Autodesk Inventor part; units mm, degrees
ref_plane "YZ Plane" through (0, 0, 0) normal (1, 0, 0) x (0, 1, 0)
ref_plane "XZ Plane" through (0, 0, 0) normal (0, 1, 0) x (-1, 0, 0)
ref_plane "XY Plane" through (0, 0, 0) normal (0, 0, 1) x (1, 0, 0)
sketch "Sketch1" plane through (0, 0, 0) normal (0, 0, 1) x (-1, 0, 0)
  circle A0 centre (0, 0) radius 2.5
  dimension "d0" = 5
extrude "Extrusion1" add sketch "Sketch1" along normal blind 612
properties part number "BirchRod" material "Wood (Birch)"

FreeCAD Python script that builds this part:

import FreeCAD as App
import Part
import Sketcher
from FreeCAD import Vector

doc = App.newDocument("Part")
body = doc.addObject("PartDesign::Body", "Body")

# Sketch on XY plane
sketch1 = body.newObject("Sketcher::SketchObject", "Sketch")
sketch1.AttachmentSupport = (doc.getObject("XY_Plane"), [""])
sketch1.MapMode = "FlatFace"
sketch1.addGeometry(Part.Circle(Vector(0, 0, 0), Vector(0, 0, 1), 2.5), False)
sketch1.addConstraint([
    Sketcher.Constraint("Coincident", 0, 3, -1, 1),
    Sketcher.Constraint("Diameter", 0, 5.0),
])
pad1 = body.newObject("PartDesign::Pad", "Pad")
pad1.Profile = sketch1
pad1.Length = 612

doc.recompute()
